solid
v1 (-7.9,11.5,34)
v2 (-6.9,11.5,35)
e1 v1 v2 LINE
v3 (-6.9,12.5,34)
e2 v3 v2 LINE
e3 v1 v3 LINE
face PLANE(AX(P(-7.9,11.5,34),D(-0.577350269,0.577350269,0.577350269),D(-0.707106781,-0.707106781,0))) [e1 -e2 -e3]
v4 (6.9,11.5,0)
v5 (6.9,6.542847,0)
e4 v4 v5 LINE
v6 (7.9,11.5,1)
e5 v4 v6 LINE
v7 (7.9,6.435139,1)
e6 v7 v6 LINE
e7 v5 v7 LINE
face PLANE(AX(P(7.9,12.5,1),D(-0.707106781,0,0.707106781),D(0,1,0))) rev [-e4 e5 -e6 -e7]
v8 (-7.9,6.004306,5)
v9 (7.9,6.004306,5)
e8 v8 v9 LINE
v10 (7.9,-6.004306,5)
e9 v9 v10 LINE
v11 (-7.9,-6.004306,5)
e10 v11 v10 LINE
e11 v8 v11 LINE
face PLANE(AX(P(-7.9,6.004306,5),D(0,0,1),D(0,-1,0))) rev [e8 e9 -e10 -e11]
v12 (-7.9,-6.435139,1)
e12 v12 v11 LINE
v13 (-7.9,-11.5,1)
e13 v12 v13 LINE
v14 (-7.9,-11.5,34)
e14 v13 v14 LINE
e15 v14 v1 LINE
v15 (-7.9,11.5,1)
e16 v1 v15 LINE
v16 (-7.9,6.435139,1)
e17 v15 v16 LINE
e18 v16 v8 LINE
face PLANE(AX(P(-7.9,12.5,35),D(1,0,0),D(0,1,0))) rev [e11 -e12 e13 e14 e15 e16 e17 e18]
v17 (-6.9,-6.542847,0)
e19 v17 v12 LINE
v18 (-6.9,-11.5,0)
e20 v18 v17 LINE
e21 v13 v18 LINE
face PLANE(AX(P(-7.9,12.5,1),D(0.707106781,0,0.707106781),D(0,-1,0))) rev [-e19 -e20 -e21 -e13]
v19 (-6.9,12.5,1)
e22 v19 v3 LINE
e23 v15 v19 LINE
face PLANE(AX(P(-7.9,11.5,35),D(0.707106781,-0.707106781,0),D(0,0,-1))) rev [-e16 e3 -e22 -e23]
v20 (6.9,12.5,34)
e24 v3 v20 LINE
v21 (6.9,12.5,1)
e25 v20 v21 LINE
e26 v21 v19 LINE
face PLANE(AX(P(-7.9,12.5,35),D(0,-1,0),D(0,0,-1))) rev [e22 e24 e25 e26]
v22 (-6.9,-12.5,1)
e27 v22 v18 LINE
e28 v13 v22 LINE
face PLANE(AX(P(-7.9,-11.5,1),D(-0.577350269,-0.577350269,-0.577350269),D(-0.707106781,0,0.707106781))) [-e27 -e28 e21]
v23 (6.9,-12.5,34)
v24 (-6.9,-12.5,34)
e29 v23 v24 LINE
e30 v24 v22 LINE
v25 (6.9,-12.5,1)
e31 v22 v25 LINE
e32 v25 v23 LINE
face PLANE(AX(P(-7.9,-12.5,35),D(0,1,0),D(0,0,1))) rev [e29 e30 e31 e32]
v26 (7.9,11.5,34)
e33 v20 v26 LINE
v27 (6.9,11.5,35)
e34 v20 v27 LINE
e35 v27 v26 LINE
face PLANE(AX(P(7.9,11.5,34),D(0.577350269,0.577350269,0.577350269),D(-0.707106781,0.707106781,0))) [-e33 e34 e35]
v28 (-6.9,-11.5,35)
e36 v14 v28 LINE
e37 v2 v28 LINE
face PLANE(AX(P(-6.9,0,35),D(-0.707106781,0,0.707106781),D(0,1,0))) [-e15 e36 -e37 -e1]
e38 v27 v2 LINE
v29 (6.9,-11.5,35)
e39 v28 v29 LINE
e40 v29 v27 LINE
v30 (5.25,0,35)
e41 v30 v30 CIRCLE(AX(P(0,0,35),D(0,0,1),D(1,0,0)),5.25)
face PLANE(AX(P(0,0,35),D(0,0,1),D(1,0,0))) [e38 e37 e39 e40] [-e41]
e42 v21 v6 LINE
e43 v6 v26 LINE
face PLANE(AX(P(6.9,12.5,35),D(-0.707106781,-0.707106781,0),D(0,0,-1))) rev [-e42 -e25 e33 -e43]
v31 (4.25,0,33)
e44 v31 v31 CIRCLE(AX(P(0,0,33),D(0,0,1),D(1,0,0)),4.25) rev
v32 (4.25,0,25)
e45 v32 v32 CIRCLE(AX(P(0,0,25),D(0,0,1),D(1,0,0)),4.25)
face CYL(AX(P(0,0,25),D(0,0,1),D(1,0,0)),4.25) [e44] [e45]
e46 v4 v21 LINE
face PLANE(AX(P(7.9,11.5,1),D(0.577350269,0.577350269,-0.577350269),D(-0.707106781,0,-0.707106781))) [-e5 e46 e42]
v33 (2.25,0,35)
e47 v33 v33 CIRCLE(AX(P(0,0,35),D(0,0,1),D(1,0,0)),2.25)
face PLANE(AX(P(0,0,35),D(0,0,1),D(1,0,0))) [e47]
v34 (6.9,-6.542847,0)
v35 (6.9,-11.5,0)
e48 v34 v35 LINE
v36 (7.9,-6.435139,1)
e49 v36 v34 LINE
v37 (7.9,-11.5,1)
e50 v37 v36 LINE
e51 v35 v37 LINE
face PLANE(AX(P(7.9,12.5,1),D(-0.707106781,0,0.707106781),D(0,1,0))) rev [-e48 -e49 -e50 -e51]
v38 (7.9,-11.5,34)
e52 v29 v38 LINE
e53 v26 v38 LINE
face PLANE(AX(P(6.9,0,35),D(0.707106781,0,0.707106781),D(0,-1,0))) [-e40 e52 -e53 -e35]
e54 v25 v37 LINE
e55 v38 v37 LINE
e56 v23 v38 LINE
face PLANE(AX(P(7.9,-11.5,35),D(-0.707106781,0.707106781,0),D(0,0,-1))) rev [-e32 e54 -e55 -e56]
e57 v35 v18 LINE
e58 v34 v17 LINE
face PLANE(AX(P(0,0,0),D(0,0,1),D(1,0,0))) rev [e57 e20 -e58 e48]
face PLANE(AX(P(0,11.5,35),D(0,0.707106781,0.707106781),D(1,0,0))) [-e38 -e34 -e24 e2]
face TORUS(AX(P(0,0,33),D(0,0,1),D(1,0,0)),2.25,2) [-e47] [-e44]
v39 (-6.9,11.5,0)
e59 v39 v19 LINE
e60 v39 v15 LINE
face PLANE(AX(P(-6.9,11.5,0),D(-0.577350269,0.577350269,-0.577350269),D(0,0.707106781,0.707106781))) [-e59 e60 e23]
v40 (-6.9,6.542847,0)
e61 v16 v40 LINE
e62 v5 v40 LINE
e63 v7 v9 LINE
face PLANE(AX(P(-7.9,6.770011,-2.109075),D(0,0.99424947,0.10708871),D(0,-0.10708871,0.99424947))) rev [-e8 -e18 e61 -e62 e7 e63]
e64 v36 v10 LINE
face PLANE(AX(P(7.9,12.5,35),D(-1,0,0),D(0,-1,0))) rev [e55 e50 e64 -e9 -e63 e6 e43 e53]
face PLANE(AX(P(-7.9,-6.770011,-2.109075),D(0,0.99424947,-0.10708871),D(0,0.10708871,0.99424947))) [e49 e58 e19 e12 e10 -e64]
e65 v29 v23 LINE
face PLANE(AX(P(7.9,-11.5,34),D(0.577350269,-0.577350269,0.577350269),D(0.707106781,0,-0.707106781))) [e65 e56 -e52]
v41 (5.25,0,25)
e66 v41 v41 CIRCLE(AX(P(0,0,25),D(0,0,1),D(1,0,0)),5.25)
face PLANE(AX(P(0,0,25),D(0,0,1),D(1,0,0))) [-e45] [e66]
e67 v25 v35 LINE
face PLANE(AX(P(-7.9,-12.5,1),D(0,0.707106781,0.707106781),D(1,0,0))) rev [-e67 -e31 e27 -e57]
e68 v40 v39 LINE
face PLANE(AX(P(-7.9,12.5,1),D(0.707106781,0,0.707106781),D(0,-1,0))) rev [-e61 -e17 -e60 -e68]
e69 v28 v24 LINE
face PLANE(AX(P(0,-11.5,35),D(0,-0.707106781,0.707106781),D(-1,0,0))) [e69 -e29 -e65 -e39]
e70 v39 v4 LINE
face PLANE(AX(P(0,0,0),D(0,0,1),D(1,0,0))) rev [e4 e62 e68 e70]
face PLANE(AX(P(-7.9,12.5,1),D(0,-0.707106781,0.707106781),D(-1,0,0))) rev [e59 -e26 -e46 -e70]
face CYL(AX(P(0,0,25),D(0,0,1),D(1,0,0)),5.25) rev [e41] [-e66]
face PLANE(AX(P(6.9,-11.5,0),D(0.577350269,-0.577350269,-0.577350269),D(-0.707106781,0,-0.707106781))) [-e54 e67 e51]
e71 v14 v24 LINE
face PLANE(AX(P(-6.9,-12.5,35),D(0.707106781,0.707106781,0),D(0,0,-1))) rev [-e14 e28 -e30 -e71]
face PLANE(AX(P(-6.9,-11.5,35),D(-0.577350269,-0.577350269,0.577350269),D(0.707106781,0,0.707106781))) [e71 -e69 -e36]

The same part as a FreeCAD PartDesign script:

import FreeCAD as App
import Part
import Sketcher

V = App.Vector
Q = App.Units.Quantity


def edges_at(feature, points):
    """Names of the edges that pass closest to the given points."""
    edges = feature.Shape.Edges
    near = lambda p: min(range(len(edges)), key=lambda i: edges[i].distToShape(Part.Vertex(*p))[0])
    return sorted({f"Edge{near(p) + 1}" for p in points})


def add_polygon(sketch, points):
    """Adds a closed chain of lines whose ends are joined by coincident constraints."""
    first, n = sketch.GeometryCount, len(points)
    for a, b in zip(points, points[1:] + points[:1]):
        sketch.addGeometry(Part.LineSegment(App.Vector(*a, 0), App.Vector(*b, 0)), False)
    for i in range(n):
        sketch.addConstraint(Sketcher.Constraint("Coincident", first + i, 2, first + (i + 1) % n, 1))

doc = App.newDocument("Part")
params = doc.addObject("Spreadsheet::Sheet", "Params")
for row, (alias, value) in enumerate([
    ("sketch1_height", "25 mm"),
    ("sketch1_width", "15.8 mm"),
    ("pad1_length", "35 mm"),
    ("sketch2_diameter", "10.5 mm"),
    ("sketch2_diameter2", "8.5 mm"),
    ("pocket1_length", "10 mm"),
    ("fillet_radius", "2 mm"),
    ("chamfer_size", "1 mm"),
], start=1):
    params.set(f"A{row}", alias)
    params.set(f"B{row}", "=" + value)
    params.setAlias(f"B{row}", alias)

body = doc.addObject("PartDesign::Body", "Body")

# Sketch on XY plane
sketch1 = body.newObject("Sketcher::SketchObject", "Sketch")
sketch1.AttachmentSupport = (doc.getObject("XY_Plane"), [""])
sketch1.MapMode = "FlatFace"
add_polygon(sketch1, [(-8, 12), (-8, -12), (8, -12), (8, 12)])  # lines 0-3
sketch1.addConstraint([
    Sketcher.Constraint("Vertical", 0),
    Sketcher.Constraint("Horizontal", 1),
    Sketcher.Constraint("Vertical", 2),
    Sketcher.Constraint("Horizontal", 3),
    Sketcher.Constraint("Symmetric", 0, 2, 2, 2, -1, 1),
    Sketcher.Constraint("DistanceY", 0, 2, 0, 1, Q("25 mm")),
    Sketcher.Constraint("DistanceX", 1, 1, 1, 2, Q("15.8 mm")),
])
sketch1.setExpression("Constraints[9]", "Params.sketch1_height")
sketch1.setExpression("Constraints[10]", "Params.sketch1_width")
pad1 = body.newObject("PartDesign::Pad", "Pad")
pad1.Profile = sketch1
pad1.setExpression("Length", "Params.pad1_length")

# Sketch on XY plane
sketch2 = body.newObject("Sketcher::SketchObject", "Sketch001")
sketch2.AttachmentSupport = (doc.getObject("XY_Plane"), [""])
sketch2.MapMode = "FlatFace"
sketch2.AttachmentOffset = App.Placement(V(0, 0, 35), App.Rotation())
sketch2.addGeometry([
    Part.Circle(V(0, 0, 0), V(0, 0, 1), 5.2),
    Part.Circle(V(0, 0, 0), V(0, 0, 1), 4.2),
], False)
sketch2.addConstraint([
    Sketcher.Constraint("Coincident", 0, 3, -1, 1),
    Sketcher.Constraint("Coincident", 1, 3, -1, 1),
    Sketcher.Constraint("Diameter", 0, Q("10.5 mm")),
    Sketcher.Constraint("Diameter", 1, Q("8.5 mm")),
])
sketch2.setExpression("Constraints[2]", "Params.sketch2_diameter")
sketch2.setExpression("Constraints[3]", "Params.sketch2_diameter2")
pocket1 = body.newObject("PartDesign::Pocket", "Pocket")
pocket1.Profile = sketch2
pocket1.setExpression("Length", "Params.pocket1_length")

# Sketch on YZ plane
sketch3 = body.newObject("Sketcher::SketchObject", "Sketch002")
sketch3.AttachmentSupport = (doc.getObject("YZ_Plane"), [""])
sketch3.MapMode = "FlatFace"
add_polygon(sketch3, [(7, -2), (6, 5), (-6, 5), (-7, -2)])  # lines 0-3
sketch3.addConstraint([
    Sketcher.Constraint("Horizontal", 1),
    Sketcher.Constraint("Horizontal", 3),
    Sketcher.Constraint("Equal", 0, 2),
    Sketcher.Constraint("DistanceY", -1, 1, 0, 2, Q("5 mm")),
    Sketcher.Constraint("DistanceX", 1, 2, 1, 1, Q("12.008613 mm")),
    Sketcher.Constraint("DistanceX", 3, 1, 3, 2, Q("13.540022 mm")),
    Sketcher.Constraint("DistanceX", 2, 2, -1, 1, Q("6.770011 mm")),
    Sketcher.Constraint("Distance", 0, Q("7.150192 mm")),
])
pocket2 = body.newObject("PartDesign::Pocket", "Pocket001")
pocket2.Profile = sketch3
pocket2.Type = "ThroughAll"
pocket2.Midplane = True
doc.recompute()

fillet = body.newObject("PartDesign::Fillet", "Fillet")
fillet.Base = (pocket2, edges_at(pocket2, [(-4.25, 0, 35)]))
fillet.setExpression("Radius", "Params.fillet_radius")
doc.recompute()

chamfer = body.newObject("PartDesign::Chamfer", "Chamfer")
chamfer.Base = (fillet, edges_at(fillet, [
    (-7.9, 0, 35),
    (0, -12.5, 35),
    (7.9, 9.521, 0),
    (-7.9, -9.521, 0),
    (7.9, 0, 35),
    (0, -12.5, 0),
    (-7.9, 9.521, 0),
    (0, 12.5, 0),
    (7.9, -9.521, 0),
    (0, 12.5, 35),
    (7.9, -12.5, 17.5),
    (-7.9, -12.5, 17.5),
    (-7.9, 12.5, 17.5),
    (7.9, 12.5, 17.5),
]))
chamfer.setExpression("Size", "Params.chamfer_size")

doc.recompute()
